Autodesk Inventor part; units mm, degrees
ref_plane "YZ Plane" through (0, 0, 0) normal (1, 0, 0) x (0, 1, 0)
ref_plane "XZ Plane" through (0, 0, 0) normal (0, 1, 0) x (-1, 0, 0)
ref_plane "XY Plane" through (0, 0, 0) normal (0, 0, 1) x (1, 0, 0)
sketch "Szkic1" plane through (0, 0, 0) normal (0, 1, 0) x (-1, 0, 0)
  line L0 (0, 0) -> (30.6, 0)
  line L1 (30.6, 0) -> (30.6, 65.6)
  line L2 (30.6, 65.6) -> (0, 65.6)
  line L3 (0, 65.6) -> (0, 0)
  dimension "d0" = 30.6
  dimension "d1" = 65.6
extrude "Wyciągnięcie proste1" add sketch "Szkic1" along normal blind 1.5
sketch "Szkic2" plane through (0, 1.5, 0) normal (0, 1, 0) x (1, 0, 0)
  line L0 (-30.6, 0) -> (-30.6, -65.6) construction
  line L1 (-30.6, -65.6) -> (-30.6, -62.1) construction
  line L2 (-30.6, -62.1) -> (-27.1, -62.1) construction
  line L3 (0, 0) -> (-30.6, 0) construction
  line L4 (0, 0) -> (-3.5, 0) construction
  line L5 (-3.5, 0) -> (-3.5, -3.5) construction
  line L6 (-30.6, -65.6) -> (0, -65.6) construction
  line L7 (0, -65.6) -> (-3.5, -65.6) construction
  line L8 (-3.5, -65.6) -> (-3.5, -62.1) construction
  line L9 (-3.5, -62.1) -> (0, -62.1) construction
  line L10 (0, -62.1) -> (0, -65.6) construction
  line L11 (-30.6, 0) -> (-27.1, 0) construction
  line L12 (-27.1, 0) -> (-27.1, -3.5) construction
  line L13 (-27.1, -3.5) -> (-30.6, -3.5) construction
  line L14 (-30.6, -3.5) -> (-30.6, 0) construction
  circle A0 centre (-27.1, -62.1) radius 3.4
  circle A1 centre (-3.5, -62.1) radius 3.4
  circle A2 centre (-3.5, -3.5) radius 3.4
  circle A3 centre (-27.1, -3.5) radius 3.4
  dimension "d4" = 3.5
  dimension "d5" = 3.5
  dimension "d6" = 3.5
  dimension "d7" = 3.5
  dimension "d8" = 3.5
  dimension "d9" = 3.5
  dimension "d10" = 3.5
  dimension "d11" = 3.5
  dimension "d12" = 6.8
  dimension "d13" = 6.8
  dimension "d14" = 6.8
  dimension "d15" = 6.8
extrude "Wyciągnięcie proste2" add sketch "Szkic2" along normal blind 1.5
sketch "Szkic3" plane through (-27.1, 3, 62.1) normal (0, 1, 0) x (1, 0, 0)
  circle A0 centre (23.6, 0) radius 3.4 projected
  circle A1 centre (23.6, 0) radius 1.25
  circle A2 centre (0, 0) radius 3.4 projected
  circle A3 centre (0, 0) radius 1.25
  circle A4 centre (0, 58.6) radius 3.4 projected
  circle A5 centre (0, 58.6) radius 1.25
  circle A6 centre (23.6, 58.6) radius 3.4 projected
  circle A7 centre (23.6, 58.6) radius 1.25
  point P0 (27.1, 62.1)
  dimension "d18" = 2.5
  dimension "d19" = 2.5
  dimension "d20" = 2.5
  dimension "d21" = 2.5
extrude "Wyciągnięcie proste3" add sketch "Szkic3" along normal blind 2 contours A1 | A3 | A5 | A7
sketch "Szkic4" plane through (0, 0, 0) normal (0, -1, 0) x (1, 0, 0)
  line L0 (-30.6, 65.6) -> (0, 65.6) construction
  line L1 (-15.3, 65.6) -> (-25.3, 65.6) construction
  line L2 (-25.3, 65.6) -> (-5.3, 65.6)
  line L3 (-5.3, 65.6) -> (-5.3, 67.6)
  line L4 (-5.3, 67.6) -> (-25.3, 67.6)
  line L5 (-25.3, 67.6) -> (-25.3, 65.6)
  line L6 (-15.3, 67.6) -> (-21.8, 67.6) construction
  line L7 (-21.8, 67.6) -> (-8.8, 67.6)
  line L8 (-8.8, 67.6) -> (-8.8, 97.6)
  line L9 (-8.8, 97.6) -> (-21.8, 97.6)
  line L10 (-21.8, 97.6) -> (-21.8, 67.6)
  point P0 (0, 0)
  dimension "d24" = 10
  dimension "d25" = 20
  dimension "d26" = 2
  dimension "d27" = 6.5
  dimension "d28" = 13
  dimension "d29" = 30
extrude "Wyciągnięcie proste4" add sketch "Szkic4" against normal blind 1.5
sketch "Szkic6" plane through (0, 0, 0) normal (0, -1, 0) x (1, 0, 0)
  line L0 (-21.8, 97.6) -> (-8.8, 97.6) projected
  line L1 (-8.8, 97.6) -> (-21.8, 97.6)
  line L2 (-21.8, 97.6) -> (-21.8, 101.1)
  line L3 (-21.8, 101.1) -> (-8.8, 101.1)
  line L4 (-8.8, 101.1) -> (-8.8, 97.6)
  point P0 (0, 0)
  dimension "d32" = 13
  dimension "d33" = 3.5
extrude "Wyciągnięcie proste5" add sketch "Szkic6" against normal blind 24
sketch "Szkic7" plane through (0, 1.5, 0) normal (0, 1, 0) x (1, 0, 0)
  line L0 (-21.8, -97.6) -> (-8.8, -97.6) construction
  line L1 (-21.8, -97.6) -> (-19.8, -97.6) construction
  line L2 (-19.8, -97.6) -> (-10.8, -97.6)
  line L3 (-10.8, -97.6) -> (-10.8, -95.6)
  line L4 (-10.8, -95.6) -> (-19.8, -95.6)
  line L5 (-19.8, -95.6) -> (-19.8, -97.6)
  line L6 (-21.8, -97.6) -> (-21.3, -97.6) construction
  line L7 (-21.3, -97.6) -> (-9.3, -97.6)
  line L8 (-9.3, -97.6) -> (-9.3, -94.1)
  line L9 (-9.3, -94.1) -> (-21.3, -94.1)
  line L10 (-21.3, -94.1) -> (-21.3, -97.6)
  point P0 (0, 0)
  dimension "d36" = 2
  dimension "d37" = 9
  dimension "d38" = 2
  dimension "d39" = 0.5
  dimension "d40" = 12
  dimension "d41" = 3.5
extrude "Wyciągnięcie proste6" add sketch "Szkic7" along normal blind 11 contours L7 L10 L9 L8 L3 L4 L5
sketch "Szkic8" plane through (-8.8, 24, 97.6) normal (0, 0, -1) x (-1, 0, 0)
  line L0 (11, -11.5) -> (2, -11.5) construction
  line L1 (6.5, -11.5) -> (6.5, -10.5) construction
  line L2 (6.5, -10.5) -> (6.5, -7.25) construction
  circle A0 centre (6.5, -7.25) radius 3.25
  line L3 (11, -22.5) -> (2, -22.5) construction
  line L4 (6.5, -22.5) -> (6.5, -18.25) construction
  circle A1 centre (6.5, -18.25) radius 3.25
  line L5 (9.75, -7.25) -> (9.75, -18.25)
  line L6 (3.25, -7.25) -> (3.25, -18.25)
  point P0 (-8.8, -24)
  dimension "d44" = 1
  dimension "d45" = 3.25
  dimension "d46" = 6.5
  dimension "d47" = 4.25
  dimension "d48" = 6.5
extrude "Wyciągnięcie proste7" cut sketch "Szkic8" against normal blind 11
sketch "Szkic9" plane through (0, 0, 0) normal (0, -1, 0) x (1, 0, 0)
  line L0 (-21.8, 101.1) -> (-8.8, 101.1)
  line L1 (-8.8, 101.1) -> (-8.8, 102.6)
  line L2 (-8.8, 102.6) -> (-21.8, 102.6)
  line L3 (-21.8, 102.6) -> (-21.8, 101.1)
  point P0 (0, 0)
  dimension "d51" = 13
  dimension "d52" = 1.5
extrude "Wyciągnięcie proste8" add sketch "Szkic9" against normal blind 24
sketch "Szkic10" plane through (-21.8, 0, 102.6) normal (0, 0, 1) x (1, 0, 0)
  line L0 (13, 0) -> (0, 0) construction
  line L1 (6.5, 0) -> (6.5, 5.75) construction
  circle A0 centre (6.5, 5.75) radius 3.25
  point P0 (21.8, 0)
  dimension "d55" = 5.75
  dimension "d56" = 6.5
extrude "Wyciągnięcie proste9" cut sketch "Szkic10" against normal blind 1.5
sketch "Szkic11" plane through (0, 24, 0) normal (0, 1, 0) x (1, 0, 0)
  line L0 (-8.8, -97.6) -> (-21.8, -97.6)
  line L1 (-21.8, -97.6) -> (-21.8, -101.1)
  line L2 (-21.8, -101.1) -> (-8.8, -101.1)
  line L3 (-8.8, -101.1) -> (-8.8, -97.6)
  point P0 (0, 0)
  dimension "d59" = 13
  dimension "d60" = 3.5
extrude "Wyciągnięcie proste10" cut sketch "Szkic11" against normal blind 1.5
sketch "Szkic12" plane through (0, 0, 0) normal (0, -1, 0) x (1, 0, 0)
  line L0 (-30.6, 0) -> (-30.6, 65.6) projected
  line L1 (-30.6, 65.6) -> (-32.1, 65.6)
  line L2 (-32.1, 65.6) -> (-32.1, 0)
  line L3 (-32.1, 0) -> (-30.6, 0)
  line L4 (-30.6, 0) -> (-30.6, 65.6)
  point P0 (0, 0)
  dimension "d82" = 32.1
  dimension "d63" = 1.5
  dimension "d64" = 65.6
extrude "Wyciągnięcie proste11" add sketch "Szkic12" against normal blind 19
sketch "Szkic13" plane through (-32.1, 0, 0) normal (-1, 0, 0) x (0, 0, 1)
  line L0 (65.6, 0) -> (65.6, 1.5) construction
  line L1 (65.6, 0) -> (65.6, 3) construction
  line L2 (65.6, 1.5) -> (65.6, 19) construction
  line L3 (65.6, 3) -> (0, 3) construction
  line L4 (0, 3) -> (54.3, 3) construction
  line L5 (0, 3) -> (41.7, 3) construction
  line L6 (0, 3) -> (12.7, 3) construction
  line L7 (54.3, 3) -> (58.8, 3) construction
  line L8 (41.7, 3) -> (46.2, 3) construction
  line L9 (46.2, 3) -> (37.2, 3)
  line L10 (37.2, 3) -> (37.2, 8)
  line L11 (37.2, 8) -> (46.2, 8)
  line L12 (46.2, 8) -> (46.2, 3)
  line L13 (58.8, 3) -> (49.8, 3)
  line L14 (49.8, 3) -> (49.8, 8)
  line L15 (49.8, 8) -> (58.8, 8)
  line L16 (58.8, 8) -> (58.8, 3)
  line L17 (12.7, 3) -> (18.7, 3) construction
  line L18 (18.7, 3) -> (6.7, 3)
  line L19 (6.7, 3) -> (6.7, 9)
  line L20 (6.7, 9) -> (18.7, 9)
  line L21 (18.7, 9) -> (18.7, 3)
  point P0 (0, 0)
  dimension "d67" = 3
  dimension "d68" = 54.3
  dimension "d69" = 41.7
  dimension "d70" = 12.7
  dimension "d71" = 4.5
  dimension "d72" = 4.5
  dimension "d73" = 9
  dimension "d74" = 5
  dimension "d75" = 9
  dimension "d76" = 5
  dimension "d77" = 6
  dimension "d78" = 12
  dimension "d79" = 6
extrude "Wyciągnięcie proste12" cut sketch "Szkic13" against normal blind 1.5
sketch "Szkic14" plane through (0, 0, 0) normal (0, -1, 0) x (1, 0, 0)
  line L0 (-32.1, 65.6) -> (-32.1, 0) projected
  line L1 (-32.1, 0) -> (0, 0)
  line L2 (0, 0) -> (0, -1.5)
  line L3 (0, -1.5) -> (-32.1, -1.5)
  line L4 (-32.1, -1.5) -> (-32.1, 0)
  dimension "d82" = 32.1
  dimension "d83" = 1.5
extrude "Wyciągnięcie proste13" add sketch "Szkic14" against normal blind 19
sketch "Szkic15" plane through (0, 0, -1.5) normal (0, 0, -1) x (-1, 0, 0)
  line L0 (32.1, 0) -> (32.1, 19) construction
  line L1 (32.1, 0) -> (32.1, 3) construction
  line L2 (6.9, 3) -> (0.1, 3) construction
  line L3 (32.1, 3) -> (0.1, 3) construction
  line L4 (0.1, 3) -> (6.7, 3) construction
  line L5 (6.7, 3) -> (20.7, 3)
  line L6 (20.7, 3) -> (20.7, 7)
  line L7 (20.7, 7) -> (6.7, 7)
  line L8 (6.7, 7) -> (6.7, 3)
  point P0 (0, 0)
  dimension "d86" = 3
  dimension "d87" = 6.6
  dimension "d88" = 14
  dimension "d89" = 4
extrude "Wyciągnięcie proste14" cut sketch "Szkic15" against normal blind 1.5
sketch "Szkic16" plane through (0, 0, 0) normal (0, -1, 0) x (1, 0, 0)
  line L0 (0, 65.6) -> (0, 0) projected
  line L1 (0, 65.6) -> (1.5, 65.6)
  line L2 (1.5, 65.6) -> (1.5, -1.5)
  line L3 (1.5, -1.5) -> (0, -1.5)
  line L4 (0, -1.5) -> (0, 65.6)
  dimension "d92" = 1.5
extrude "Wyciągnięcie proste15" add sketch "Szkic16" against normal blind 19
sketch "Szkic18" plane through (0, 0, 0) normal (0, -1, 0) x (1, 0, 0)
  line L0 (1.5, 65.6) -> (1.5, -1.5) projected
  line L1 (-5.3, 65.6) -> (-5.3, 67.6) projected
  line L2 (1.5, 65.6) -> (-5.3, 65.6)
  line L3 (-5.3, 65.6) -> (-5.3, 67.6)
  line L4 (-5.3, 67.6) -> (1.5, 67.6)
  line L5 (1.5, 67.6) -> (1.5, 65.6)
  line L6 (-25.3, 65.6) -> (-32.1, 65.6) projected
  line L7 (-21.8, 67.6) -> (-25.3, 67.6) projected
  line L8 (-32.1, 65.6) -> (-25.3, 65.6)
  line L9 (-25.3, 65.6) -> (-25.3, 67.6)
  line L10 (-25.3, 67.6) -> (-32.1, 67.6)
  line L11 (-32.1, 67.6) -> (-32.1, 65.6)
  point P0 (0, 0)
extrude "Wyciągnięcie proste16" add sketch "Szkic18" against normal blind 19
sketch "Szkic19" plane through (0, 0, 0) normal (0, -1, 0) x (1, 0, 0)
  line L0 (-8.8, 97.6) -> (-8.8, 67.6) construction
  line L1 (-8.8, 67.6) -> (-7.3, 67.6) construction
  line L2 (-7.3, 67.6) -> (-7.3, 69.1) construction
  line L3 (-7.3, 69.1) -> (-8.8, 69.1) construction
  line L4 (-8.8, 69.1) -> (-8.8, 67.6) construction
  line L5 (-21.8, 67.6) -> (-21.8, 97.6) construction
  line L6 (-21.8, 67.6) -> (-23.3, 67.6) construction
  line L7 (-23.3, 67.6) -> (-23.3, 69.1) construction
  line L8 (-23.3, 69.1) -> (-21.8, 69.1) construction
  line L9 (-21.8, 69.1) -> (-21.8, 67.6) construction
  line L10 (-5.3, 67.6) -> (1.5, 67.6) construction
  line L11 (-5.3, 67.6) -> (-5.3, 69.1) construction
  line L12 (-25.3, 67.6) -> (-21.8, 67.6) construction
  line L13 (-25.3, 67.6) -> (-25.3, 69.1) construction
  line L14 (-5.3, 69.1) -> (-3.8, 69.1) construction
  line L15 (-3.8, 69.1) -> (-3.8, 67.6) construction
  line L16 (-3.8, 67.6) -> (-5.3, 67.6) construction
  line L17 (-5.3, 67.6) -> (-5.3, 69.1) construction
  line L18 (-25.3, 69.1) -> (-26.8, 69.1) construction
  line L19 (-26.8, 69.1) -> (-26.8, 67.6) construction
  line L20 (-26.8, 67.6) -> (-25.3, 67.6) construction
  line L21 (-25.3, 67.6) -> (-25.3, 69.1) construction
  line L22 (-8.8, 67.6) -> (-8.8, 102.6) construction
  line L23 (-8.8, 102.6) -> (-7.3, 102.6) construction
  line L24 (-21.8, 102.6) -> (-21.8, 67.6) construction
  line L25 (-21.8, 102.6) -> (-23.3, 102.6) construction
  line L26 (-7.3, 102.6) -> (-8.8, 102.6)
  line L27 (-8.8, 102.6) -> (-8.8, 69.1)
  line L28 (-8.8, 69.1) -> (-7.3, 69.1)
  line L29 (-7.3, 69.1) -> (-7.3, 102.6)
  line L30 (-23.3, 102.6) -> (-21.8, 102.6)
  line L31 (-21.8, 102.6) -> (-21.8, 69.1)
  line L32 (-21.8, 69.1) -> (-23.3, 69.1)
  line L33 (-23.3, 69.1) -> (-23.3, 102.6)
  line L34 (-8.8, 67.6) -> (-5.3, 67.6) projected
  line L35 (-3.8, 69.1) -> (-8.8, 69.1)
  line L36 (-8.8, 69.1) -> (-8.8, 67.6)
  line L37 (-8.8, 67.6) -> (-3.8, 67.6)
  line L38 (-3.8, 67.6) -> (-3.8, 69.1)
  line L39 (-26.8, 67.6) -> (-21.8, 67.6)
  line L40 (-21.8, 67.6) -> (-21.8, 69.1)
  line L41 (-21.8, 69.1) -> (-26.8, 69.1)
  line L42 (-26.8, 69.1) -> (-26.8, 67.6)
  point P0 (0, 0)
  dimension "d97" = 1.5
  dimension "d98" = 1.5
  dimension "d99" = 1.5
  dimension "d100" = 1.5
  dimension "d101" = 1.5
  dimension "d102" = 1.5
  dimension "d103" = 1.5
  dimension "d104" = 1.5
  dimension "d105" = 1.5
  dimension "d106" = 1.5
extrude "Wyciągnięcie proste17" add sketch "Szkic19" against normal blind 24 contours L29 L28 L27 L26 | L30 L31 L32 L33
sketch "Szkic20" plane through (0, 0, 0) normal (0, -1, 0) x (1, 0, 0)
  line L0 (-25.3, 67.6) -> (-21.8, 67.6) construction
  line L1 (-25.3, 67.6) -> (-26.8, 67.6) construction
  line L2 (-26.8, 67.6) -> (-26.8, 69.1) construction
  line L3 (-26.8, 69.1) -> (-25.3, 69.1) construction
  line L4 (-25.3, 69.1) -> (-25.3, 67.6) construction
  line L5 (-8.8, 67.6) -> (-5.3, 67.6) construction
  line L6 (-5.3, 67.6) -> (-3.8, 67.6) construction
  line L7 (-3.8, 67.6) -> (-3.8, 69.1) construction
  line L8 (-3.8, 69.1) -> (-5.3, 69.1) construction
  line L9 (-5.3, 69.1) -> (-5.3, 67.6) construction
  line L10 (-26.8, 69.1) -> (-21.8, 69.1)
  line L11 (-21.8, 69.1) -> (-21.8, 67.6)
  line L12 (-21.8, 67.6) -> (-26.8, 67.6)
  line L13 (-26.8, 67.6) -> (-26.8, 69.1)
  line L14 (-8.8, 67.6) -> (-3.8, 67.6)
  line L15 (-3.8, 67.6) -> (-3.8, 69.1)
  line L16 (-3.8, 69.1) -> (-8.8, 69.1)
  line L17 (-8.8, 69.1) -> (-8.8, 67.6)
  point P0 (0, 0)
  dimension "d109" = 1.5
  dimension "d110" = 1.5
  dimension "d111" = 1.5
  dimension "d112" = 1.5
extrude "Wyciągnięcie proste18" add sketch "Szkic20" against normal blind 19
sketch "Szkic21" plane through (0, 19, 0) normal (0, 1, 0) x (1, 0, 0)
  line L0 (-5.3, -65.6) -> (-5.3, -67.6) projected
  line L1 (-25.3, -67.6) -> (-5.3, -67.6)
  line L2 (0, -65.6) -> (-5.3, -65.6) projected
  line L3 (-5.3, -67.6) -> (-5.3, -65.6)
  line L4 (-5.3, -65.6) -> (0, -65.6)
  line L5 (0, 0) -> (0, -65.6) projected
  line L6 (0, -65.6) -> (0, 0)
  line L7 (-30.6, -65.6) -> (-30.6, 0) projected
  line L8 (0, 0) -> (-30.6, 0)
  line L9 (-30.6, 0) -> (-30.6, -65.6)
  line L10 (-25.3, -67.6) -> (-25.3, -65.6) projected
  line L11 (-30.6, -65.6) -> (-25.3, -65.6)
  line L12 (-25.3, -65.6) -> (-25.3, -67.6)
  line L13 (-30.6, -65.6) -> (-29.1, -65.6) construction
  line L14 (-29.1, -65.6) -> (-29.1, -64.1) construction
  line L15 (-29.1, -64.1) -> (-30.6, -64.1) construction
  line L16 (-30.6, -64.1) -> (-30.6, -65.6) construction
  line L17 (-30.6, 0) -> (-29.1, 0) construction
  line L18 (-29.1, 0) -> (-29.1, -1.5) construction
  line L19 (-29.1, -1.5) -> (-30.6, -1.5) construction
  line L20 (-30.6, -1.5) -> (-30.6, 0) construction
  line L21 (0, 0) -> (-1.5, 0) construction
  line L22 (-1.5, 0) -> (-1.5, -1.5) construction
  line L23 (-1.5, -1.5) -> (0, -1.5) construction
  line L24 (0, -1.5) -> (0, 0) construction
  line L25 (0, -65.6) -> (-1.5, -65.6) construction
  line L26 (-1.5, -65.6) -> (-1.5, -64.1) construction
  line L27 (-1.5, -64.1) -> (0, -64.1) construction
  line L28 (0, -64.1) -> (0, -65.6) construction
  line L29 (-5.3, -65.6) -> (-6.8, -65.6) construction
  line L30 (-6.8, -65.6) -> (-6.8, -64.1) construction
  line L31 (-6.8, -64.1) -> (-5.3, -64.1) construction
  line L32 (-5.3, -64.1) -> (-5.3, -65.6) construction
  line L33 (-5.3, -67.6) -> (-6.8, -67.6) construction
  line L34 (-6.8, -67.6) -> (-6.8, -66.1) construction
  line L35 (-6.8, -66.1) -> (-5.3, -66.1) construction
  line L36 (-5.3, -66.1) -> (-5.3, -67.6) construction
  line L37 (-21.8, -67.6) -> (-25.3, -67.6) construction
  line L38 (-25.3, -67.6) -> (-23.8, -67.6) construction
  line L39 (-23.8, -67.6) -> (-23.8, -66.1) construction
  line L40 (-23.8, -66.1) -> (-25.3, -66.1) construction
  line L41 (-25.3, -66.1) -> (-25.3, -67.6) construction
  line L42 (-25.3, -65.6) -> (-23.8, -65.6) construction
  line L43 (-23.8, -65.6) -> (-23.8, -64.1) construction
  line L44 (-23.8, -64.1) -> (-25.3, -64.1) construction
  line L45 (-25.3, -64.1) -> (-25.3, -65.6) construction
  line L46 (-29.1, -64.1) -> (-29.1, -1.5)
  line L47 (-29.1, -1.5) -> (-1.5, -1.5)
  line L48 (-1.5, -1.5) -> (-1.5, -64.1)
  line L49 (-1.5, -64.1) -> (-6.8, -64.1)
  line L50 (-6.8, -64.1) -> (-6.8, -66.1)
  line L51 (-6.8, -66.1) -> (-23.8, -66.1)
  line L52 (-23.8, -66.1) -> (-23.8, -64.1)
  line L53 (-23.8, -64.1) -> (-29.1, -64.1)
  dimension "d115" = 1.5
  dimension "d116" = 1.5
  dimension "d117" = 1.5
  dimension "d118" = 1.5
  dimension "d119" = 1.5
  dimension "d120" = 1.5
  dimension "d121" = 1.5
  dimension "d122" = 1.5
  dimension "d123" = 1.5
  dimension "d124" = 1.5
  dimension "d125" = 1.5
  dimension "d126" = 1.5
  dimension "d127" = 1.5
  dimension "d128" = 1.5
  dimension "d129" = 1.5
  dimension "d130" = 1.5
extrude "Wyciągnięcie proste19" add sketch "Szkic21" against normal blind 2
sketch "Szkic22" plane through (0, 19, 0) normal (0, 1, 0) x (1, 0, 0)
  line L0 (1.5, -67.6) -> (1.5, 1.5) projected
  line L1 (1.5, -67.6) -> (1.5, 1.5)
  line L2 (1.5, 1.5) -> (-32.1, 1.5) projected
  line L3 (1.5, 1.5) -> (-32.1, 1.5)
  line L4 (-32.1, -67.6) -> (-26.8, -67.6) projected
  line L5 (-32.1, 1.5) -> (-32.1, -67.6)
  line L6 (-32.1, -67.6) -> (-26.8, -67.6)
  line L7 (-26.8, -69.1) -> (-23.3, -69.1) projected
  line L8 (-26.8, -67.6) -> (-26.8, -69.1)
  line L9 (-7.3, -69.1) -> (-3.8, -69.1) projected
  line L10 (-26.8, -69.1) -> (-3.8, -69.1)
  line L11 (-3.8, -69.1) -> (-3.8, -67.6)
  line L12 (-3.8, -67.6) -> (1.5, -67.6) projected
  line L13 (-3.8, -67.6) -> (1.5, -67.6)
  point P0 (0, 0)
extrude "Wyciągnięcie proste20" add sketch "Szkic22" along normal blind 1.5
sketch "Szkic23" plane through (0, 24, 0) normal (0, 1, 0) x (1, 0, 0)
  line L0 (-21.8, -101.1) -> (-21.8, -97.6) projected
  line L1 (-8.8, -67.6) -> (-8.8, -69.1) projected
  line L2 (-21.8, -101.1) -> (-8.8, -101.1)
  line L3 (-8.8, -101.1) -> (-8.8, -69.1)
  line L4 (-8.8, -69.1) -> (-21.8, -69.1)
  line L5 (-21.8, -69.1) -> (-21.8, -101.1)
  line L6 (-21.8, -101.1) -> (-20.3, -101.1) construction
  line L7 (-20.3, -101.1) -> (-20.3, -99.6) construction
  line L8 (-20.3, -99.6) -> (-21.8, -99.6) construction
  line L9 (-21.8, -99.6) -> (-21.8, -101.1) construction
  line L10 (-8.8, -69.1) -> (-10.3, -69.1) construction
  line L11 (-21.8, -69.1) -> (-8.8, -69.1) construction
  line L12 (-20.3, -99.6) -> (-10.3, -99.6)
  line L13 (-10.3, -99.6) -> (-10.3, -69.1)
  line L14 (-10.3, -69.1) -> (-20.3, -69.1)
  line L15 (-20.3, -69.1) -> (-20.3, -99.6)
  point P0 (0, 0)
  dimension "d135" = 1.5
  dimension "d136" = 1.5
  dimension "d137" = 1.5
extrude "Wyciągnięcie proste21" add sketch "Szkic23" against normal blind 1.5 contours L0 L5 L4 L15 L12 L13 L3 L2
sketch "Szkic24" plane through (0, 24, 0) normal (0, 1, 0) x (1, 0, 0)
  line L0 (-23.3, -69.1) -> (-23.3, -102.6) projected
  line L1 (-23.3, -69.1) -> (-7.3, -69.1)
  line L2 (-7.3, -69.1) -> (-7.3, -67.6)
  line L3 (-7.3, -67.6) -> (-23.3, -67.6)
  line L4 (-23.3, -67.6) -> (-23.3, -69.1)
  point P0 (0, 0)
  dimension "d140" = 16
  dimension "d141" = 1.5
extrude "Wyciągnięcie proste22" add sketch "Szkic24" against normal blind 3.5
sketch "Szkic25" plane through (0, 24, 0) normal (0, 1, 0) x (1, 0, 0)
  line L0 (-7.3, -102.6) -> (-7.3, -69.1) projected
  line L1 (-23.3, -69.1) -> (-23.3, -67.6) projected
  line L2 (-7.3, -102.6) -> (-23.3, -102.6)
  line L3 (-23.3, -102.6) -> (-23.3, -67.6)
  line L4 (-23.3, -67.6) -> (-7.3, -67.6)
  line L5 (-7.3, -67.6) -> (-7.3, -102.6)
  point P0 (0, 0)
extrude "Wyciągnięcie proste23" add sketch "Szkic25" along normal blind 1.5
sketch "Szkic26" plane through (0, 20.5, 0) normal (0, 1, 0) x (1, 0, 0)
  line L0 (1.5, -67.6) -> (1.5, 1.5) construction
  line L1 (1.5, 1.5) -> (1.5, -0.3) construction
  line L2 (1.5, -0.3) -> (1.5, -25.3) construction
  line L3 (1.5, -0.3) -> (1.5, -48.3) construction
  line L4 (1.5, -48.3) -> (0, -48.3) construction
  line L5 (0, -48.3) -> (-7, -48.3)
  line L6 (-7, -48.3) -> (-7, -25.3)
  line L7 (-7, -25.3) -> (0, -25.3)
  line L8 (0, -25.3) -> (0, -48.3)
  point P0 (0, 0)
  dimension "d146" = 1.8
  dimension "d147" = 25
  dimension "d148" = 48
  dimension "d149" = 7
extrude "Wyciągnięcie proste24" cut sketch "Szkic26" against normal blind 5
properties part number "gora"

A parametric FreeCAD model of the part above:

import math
import FreeCAD as App
import Part
import Sketcher
from FreeCAD import Vector
Q = App.Units.Quantity


def add_polygon(sketch, points):
    """Adds a closed chain of lines whose ends are joined by coincident constraints."""
    first, n = sketch.GeometryCount, len(points)
    for a, b in zip(points, points[1:] + points[:1]):
        sketch.addGeometry(Part.LineSegment(App.Vector(*a, 0), App.Vector(*b, 0)), False)
    for i in range(n):
        sketch.addConstraint(Sketcher.Constraint("Coincident", first + i, 2, first + (i + 1) % n, 1))

doc = App.newDocument("Part")
body = doc.addObject("PartDesign::Body", "Body")

sketch1 = body.newObject("Sketcher::SketchObject", "Sketch")
sketch1.AttachmentSupport = (doc.getObject("XZ_Plane"), [""])
sketch1.MapMode = "FlatFace"
add_polygon(sketch1, [(0, 66), (0, 0), (-31, 0), (-31, 66)])
sketch1.addConstraint(Sketcher.Constraint("Vertical", 0))
sketch1.addConstraint(Sketcher.Constraint("Horizontal", 1))
sketch1.addConstraint(Sketcher.Constraint("Vertical", 2))
sketch1.addConstraint(Sketcher.Constraint("Horizontal", 3))
sketch1.addConstraint(Sketcher.Constraint("Coincident", 0, 2, -1, 1))
sketch1.addConstraint(Sketcher.Constraint("DistanceX", 1, 2, 1, 1, Q("30.6 mm")))
sketch1.addConstraint(Sketcher.Constraint("DistanceY", 0, 2, 0, 1, Q("65.6 mm")))
pad1 = body.newObject("PartDesign::Pad", "Pad")
pad1.Profile = sketch1
pad1.Length = 1.5
pad1.Reversed = True

sketch2 = body.newObject("Sketcher::SketchObject", "Sketch001")
sketch2.AttachmentSupport = (doc.getObject("XZ_Plane"), [""])
sketch2.MapMode = "FlatFace"
sketch2.AttachmentOffset = App.Placement(Vector(0, 0, -1.5), App.Rotation())
sketch2.addGeometry(Part.Circle(Vector(-27.1, 62.1, 0), Vector(0, 0, 1), 3.4), False)
sketch2.addGeometry(Part.Circle(Vector(-3.5, 62.1, 0), Vector(0, 0, 1), 3.4), False)
sketch2.addGeometry(Part.Circle(Vector(-3.5, 3.5, 0), Vector(0, 0, 1), 3.4), False)
sketch2.addGeometry(Part.Circle(Vector(-27.1, 3.5, 0), Vector(0, 0, 1), 3.4), False)
sketch2.addConstraint(Sketcher.Constraint("Equal", 0, 1))
sketch2.addConstraint(Sketcher.Constraint("Equal", 1, 2))
sketch2.addConstraint(Sketcher.Constraint("Equal", 2, 3))
sketch2.addConstraint(Sketcher.Constraint("Horizontal", 0, 3, 1, 3))
sketch2.addConstraint(Sketcher.Constraint("Horizontal", 2, 3, 3, 3))
sketch2.addConstraint(Sketcher.Constraint("Vertical", 1, 3, 2, 3))
sketch2.addConstraint(Sketcher.Constraint("Vertical", 0, 3, 3, 3))
sketch2.addConstraint(Sketcher.Constraint("Diameter", 0, Q("6.8 mm")))
sketch2.addConstraint(Sketcher.Constraint("DistanceX", 1, 3, -1, 1, Q("3.5 mm")))
sketch2.addConstraint(Sketcher.Constraint("DistanceY", -1, 1, 2, 3, Q("3.5 mm")))
sketch2.addConstraint(Sketcher.Constraint("DistanceX", 0, 3, -1, 1, Q("27.1 mm")))
sketch2.addConstraint(Sketcher.Constraint("DistanceY", -1, 1, 0, 3, Q("62.1 mm")))
pad2 = body.newObject("PartDesign::Pad", "Pad001")
pad2.Profile = sketch2
pad2.Length = 1.5
pad2.Reversed = True

sketch3 = body.newObject("Sketcher::SketchObject", "Sketch002")
sketch3.AttachmentSupport = (doc.getObject("XZ_Plane"), [""])
sketch3.MapMode = "FlatFace"
sketch3.AttachmentOffset = App.Placement(Vector(0, 0, -3), App.Rotation())
sketch3.addGeometry(Part.Circle(Vector(-3.5, 62.1, 0), Vector(0, 0, 1), 1.2), False)
sketch3.addGeometry(Part.Circle(Vector(-27.1, 62.1, 0), Vector(0, 0, 1), 1.2), False)
sketch3.addGeometry(Part.Circle(Vector(-27.1, 3.5, 0), Vector(0, 0, 1), 1.2), False)
sketch3.addGeometry(Part.Circle(Vector(-3.5, 3.5, 0), Vector(0, 0, 1), 1.2), False)
sketch3.addConstraint(Sketcher.Constraint("Equal", 0, 1))
sketch3.addConstraint(Sketcher.Constraint("Equal", 1, 2))
sketch3.addConstraint(Sketcher.Constraint("Equal", 2, 3))
sketch3.addConstraint(Sketcher.Constraint("Horizontal", 0, 3, 1, 3))
sketch3.addConstraint(Sketcher.Constraint("Horizontal", 2, 3, 3, 3))
sketch3.addConstraint(Sketcher.Constraint("Vertical", 1, 3, 2, 3))
sketch3.addConstraint(Sketcher.Constraint("Vertical", 0, 3, 3, 3))
sketch3.addConstraint(Sketcher.Constraint("Diameter", 0, Q("2.5 mm")))
sketch3.addConstraint(Sketcher.Constraint("DistanceX", 0, 3, -1, 1, Q("3.5 mm")))
sketch3.addConstraint(Sketcher.Constraint("DistanceY", -1, 1, 0, 3, Q("62.1 mm")))
sketch3.addConstraint(Sketcher.Constraint("DistanceX", 1, 3, -1, 1, Q("27.1 mm")))
sketch3.addConstraint(Sketcher.Constraint("DistanceY", -1, 1, 2, 3, Q("3.5 mm")))
pad3 = body.newObject("PartDesign::Pad", "Pad002")
pad3.Profile = sketch3
pad3.Length = 2
pad3.Reversed = True

sketch4 = body.newObject("Sketcher::SketchObject", "Sketch003")
sketch4.AttachmentSupport = (doc.getObject("XZ_Plane"), [""])
sketch4.MapMode = "FlatFace"
add_polygon(sketch4, [(-25.3, 67.6), (-25.3, 65.6), (-5.3, 65.6), (-5.3, 67.6), (-8.8, 67.6), (-8.8, 97.6), (-21.8, 97.6), (-21.8, 67.6)])
sketch4.addConstraint(Sketcher.Constraint("Vertical", 0))
sketch4.addConstraint(Sketcher.Constraint("Horizontal", 1))
sketch4.addConstraint(Sketcher.Constraint("Vertical", 2))
sketch4.addConstraint(Sketcher.Constraint("Horizontal", 3))
sketch4.addConstraint(Sketcher.Constraint("Vertical", 4))
sketch4.addConstraint(Sketcher.Constraint("Horizontal", 5))
sketch4.addConstraint(Sketcher.Constraint("Vertical", 6))
sketch4.addConstraint(Sketcher.Constraint("Horizontal", 7))
sketch4.addConstraint(Sketcher.Constraint("Horizontal", 3, 2, 6, 2))
sketch4.addConstraint(Sketcher.Constraint("Equal", 3, 7))
sketch4.addConstraint(Sketcher.Constraint("DistanceX", 1, 1, 1, 2, Q("20 mm")))
sketch4.addConstraint(Sketcher.Constraint("DistanceX", 5, 2, 5, 1, Q("13 mm")))
sketch4.addConstraint(Sketcher.Constraint("DistanceY", 0, 2, 0, 1, Q("2 mm")))
sketch4.addConstraint(Sketcher.Constraint("DistanceY", 4, 1, 4, 2, Q("30 mm")))
sketch4.addConstraint(Sketcher.Constraint("DistanceX", 0, 2, -1, 1, Q("25.3 mm")))
sketch4.addConstraint(Sketcher.Constraint("DistanceY", -1, 1, 0, 2, Q("65.6 mm")))
pad4 = body.newObject("PartDesign::Pad", "Pad003")
pad4.Profile = sketch4
pad4.Length = 1.5
pad4.Reversed = True

sketch5 = body.newObject("Sketcher::SketchObject", "Sketch004")
sketch5.AttachmentSupport = (doc.getObject("XZ_Plane"), [""])
sketch5.MapMode = "FlatFace"
add_polygon(sketch5, [(-21.8, 101.1), (-21.8, 97.6), (-8.8, 97.6), (-8.8, 101.1)])
sketch5.addConstraint(Sketcher.Constraint("Vertical", 0))
sketch5.addConstraint(Sketcher.Constraint("Horizontal", 1))
sketch5.addConstraint(Sketcher.Constraint("Vertical", 2))
sketch5.addConstraint(Sketcher.Constraint("Horizontal", 3))
sketch5.addConstraint(Sketcher.Constraint("DistanceX", 1, 1, 1, 2, Q("13 mm")))
sketch5.addConstraint(Sketcher.Constraint("DistanceY", 0, 2, 0, 1, Q("3.5 mm")))
sketch5.addConstraint(Sketcher.Constraint("DistanceX", 0, 2, -1, 1, Q("21.8 mm")))
sketch5.addConstraint(Sketcher.Constraint("DistanceY", -1, 1, 0, 2, Q("97.6 mm")))
pad5 = body.newObject("PartDesign::Pad", "Pad004")
pad5.Profile = sketch5
pad5.Length = 24
pad5.Reversed = True

sketch6 = body.newObject("Sketcher::SketchObject", "Sketch005")
sketch6.AttachmentSupport = (doc.getObject("XZ_Plane"), [""])
sketch6.MapMode = "FlatFace"
sketch6.AttachmentOffset = App.Placement(Vector(0, 0, -1.5), App.Rotation())
add_polygon(sketch6, [(-21.3, 97.6), (-19.8, 97.6), (-19.8, 95.6), (-10.8, 95.6), (-10.8, 97.6), (-9.3, 97.6), (-9.3, 94.1), (-21.3, 94.1)])
sketch6.addConstraint(Sketcher.Constraint("Horizontal", 0))
sketch6.addConstraint(Sketcher.Constraint("Vertical", 1))
sketch6.addConstraint(Sketcher.Constraint("Horizontal", 2))
sketch6.addConstraint(Sketcher.Constraint("Vertical", 3))
sketch6.addConstraint(Sketcher.Constraint("Horizontal", 4))
sketch6.addConstraint(Sketcher.Constraint("Vertical", 5))
sketch6.addConstraint(Sketcher.Constraint("Horizontal", 6))
sketch6.addConstraint(Sketcher.Constraint("Vertical", 7))
sketch6.addConstraint(Sketcher.Constraint("Horizontal", 0, 2, 3, 2))
sketch6.addConstraint(Sketcher.Constraint("Equal", 0, 4))
sketch6.addConstraint(Sketcher.Constraint("DistanceX", 2, 1, 2, 2, Q("9 mm")))
sketch6.addConstraint(Sketcher.Constraint("DistanceX", 6, 2, 6, 1, Q("12 mm")))
sketch6.addConstraint(Sketcher.Constraint("DistanceY", 1, 2, 1, 1, Q("2 mm")))
sketch6.addConstraint(Sketcher.Constraint("DistanceY", 5, 2, 5, 1, Q("3.5 mm")))
sketch6.addConstraint(Sketcher.Constraint("DistanceX", 0, 2, -1, 1, Q("19.8 mm")))
sketch6.addConstraint(Sketcher.Constraint("DistanceY", -1, 1, 0, 2, Q("97.6 mm")))
pad6 = body.newObject("PartDesign::Pad", "Pad005")
pad6.Profile = sketch6
pad6.Length = 11
pad6.Reversed = True

sketch7 = body.newObject("Sketcher::SketchObject", "Sketch006")
sketch7.AttachmentSupport = (doc.getObject("XY_Plane"), [""])
sketch7.MapMode = "FlatFace"
sketch7.AttachmentOffset = App.Placement(Vector(0, 0, 97.6), App.Rotation())
sketch7.addGeometry(Part.ArcOfCircle(Part.Circle(Vector(-15.3, 16.8, 0), Vector(0, 0, 1), 3.2), math.radians(0), math.radians(180)), False)
sketch7.addGeometry(Part.LineSegment(Vector(-12.1, 16.8, 0), Vector(-12.1, 5.8, 0)), False)
sketch7.addGeometry(Part.ArcOfCircle(Part.Circle(Vector(-15.3, 5.8, 0), Vector(0, 0, 1), 3.2), math.radians(180), math.radians(360)), False)
sketch7.addGeometry(Part.LineSegment(Vector(-18.6, 5.8, 0), Vector(-18.6, 16.8, 0)), False)
sketch7.addConstraint(Sketcher.Constraint("Tangent", 0, 1, 1, 1))
sketch7.addConstraint(Sketcher.Constraint("Tangent", 1, 2, 2, 2))
sketch7.addConstraint(Sketcher.Constraint("Tangent", 2, 1, 3, 1))
sketch7.addConstraint(Sketcher.Constraint("Tangent", 3, 2, 0, 2))
sketch7.addConstraint(Sketcher.Constraint("Vertical", 1))
sketch7.addConstraint(Sketcher.Constraint("Vertical", 3))
sketch7.addConstraint(Sketcher.Constraint("Radius", 0, Q("3.25 mm")))
sketch7.addConstraint(Sketcher.Constraint("DistanceY", 1, 2, 1, 1, Q("11 mm")))
sketch7.addConstraint(Sketcher.Constraint("DistanceX", 0, 3, -1, 1, Q("15.3 mm")))
sketch7.addConstraint(Sketcher.Constraint("DistanceY", -1, 1, 0, 3, Q("16.75 mm")))
pocket1 = body.newObject("PartDesign::Pocket", "Pocket")
pocket1.Profile = sketch7
pocket1.Length = 11
pocket1.Reversed = True

sketch8 = body.newObject("Sketcher::SketchObject", "Sketch007")
sketch8.AttachmentSupport = (doc.getObject("XZ_Plane"), [""])
sketch8.MapMode = "FlatFace"
add_polygon(sketch8, [(-21.8, 102.6), (-21.8, 101.1), (-8.8, 101.1), (-8.8, 102.6)])
sketch8.addConstraint(Sketcher.Constraint("Vertical", 0))
sketch8.addConstraint(Sketcher.Constraint("Horizontal", 1))
sketch8.addConstraint(Sketcher.Constraint("Vertical", 2))
sketch8.addConstraint(Sketcher.Constraint("Horizontal", 3))
sketch8.addConstraint(Sketcher.Constraint("DistanceX", 1, 1, 1, 2, Q("13 mm")))
sketch8.addConstraint(Sketcher.Constraint("DistanceY", 0, 2, 0, 1, Q("1.5 mm")))
sketch8.addConstraint(Sketcher.Constraint("DistanceX", 0, 2, -1, 1, Q("21.8 mm")))
sketch8.addConstraint(Sketcher.Constraint("DistanceY", -1, 1, 0, 2, Q("101.1 mm")))
pad7 = body.newObject("PartDesign::Pad", "Pad006")
pad7.Profile = sketch8
pad7.Length = 24
pad7.Reversed = True

sketch9 = body.newObject("Sketcher::SketchObject", "Sketch008")
sketch9.AttachmentSupport = (doc.getObject("XY_Plane"), [""])
sketch9.MapMode = "FlatFace"
sketch9.AttachmentOffset = App.Placement(Vector(0, 0, 102.6), App.Rotation())
sketch9.addGeometry(Part.Circle(Vector(-15.3, 5.8, 0), Vector(0, 0, 1), 3.2), False)
sketch9.addConstraint(Sketcher.Constraint("Diameter", 0, Q("6.5 mm")))
sketch9.addConstraint(Sketcher.Constraint("DistanceY", -1, 1, 0, 3, Q("5.75 mm")))
sketch9.addConstraint(Sketcher.Constraint("DistanceX", 0, 3, -1, 1, Q("15.3 mm")))
pocket2 = body.newObject("PartDesign::Pocket", "Pocket001")
pocket2.Profile = sketch9
pocket2.Length = 1.5

sketch10 = body.newObject("Sketcher::SketchObject", "Sketch009")
sketch10.AttachmentSupport = (doc.getObject("XZ_Plane"), [""])
sketch10.MapMode = "FlatFace"
sketch10.AttachmentOffset = App.Placement(Vector(0, 0, -24), App.Rotation())
add_polygon(sketch10, [(-8.8, 101.1), (-8.8, 97.6), (-21.8, 97.6), (-21.8, 101.1)])
sketch10.addConstraint(Sketcher.Constraint("Vertical", 0))
sketch10.addConstraint(Sketcher.Constraint("Horizontal", 1))
sketch10.addConstraint(Sketcher.Constraint("Vertical", 2))
sketch10.addConstraint(Sketcher.Constraint("Horizontal", 3))
sketch10.addConstraint(Sketcher.Constraint("DistanceX", 1, 2, 1, 1, Q("13 mm")))
sketch10.addConstraint(Sketcher.Constraint("DistanceY", 0, 2, 0, 1, Q("3.5 mm")))
sketch10.addConstraint(Sketcher.Constraint("DistanceX", 0, 2, -1, 1, Q("8.8 mm")))
sketch10.addConstraint(Sketcher.Constraint("DistanceY", -1, 1, 0, 2, Q("97.6 mm")))
pocket3 = body.newObject("PartDesign::Pocket", "Pocket002")
pocket3.Profile = sketch10
pocket3.Length = 1.5
pocket3.Reversed = True

sketch11 = body.newObject("Sketcher::SketchObject", "Sketch010")
sketch11.AttachmentSupport = (doc.getObject("XZ_Plane"), [""])
sketch11.MapMode = "FlatFace"
add_polygon(sketch11, [(-32.1, 0), (-30.6, 0), (-30.6, 65.6), (-32.1, 65.6)])
sketch11.addConstraint(Sketcher.Constraint("Horizontal", 0))
sketch11.addConstraint(Sketcher.Constraint("Vertical", 1))
sketch11.addConstraint(Sketcher.Constraint("Horizontal", 2))
sketch11.addConstraint(Sketcher.Constraint("Vertical", 3))
sketch11.addConstraint(Sketcher.Constraint("PointOnObject", 0, 2, -1))
sketch11.addConstraint(Sketcher.Constraint("DistanceX", 0, 1, 0, 2, Q("1.5 mm")))
sketch11.addConstraint(Sketcher.Constraint("DistanceY", 1, 1, 1, 2, Q("65.6 mm")))
sketch11.addConstraint(Sketcher.Constraint("DistanceX", 2, 2, -1, 1, Q("32.1 mm")))
pad8 = body.newObject("PartDesign::Pad", "Pad007")
pad8.Profile = sketch11
pad8.Length = 19
pad8.Reversed = True

sketch12 = body.newObject("Sketcher::SketchObject", "Sketch011")
sketch12.AttachmentSupport = (doc.getObject("YZ_Plane"), [""])
sketch12.MapMode = "FlatFace"
sketch12.AttachmentOffset = App.Placement(Vector(0, 0, -32.1), App.Rotation())
add_polygon(sketch12, [(3, 37), (3, 46), (8, 46), (8, 37)])
add_polygon(sketch12, [(3, 50), (3, 59), (8, 59), (8, 50)])
add_polygon(sketch12, [(3, 7), (3, 19), (9, 19), (9, 7)])
sketch12.addConstraint(Sketcher.Constraint("Vertical", 0))
sketch12.addConstraint(Sketcher.Constraint("Horizontal", 1))
sketch12.addConstraint(Sketcher.Constraint("Vertical", 2))
sketch12.addConstraint(Sketcher.Constraint("Horizontal", 3))
sketch12.addConstraint(Sketcher.Constraint("Vertical", 4))
sketch12.addConstraint(Sketcher.Constraint("Horizontal", 5))
sketch12.addConstraint(Sketcher.Constraint("Vertical", 6))
sketch12.addConstraint(Sketcher.Constraint("Horizontal", 7))
sketch12.addConstraint(Sketcher.Constraint("Vertical", 8))
sketch12.addConstraint(Sketcher.Constraint("Horizontal", 9))
sketch12.addConstraint(Sketcher.Constraint("Vertical", 10))
sketch12.addConstraint(Sketcher.Constraint("Horizontal", 11))
sketch12.addConstraint(Sketcher.Constraint("Vertical", 3, 2, 4, 2))
sketch12.addConstraint(Sketcher.Constraint("Vertical", 2, 2, 5, 2))
sketch12.addConstraint(Sketcher.Constraint("Vertical", 7, 2, 8, 2))
sketch12.addConstraint(Sketcher.Constraint("Equal", 2, 4))
sketch12.addConstraint(Sketcher.Constraint("DistanceX", 1, 1, 1, 2, Q("5 mm")))
sketch12.addConstraint(Sketcher.Constraint("DistanceX", 9, 1, 9, 2, Q("6 mm")))
sketch12.addConstraint(Sketcher.Constraint("DistanceY", 0, 1, 0, 2, Q("9 mm")))
sketch12.addConstraint(Sketcher.Constraint("DistanceY", 8, 1, 8, 2, Q("12 mm")))
sketch12.addConstraint(Sketcher.Constraint("DistanceX", -1, 1, 0, 2, Q("3 mm")))
sketch12.addConstraint(Sketcher.Constraint("DistanceY", -1, 1, 0, 2, Q("46.2 mm")))
sketch12.addConstraint(Sketcher.Constraint("DistanceY", -1, 1, 4, 2, Q("58.8 mm")))
sketch12.addConstraint(Sketcher.Constraint("DistanceY", -1, 1, 8, 2, Q("18.7 mm")))
pocket4 = body.newObject("PartDesign::Pocket", "Pocket003")
pocket4.Profile = sketch12
pocket4.Length = 1.5
pocket4.Reversed = True

sketch13 = body.newObject("Sketcher::SketchObject", "Sketch012")
sketch13.AttachmentSupport = (doc.getObject("XZ_Plane"), [""])
sketch13.MapMode = "FlatFace"
add_polygon(sketch13, [(0, 0), (-32.1, 0), (-32.1, -1.5), (0, -1.5)])
sketch13.addConstraint(Sketcher.Constraint("Horizontal", 0))
sketch13.addConstraint(Sketcher.Constraint("Vertical", 1))
sketch13.addConstraint(Sketcher.Constraint("Horizontal", 2))
sketch13.addConstraint(Sketcher.Constraint("Vertical", 3))
sketch13.addConstraint(Sketcher.Constraint("Coincident", 3, 2, -1, 1))
sketch13.addConstraint(Sketcher.Constraint("DistanceX", 0, 2, 0, 1, Q("32.1 mm")))
sketch13.addConstraint(Sketcher.Constraint("DistanceY", 1, 2, 1, 1, Q("1.5 mm")))
pad9 = body.newObject("PartDesign::Pad", "Pad008")
pad9.Profile = sketch13
pad9.Length = 19
pad9.Reversed = True

sketch14 = body.newObject("Sketcher::SketchObject", "Sketch013")
sketch14.AttachmentSupport = (doc.getObject("XY_Plane"), [""])
sketch14.MapMode = "FlatFace"
sketch14.AttachmentOffset = App.Placement(Vector(0, 0, -1.5), App.Rotation())
add_polygon(sketch14, [(-6.7, 7), (-6.7, 3), (-20.7, 3), (-20.7, 7)])
sketch14.addConstraint(Sketcher.Constraint("Vertical", 0))
sketch14.addConstraint(Sketcher.Constraint("Horizontal", 1))
sketch14.addConstraint(Sketcher.Constraint("Vertical", 2))
sketch14.addConstraint(Sketcher.Constraint("Horizontal", 3))
sketch14.addConstraint(Sketcher.Constraint("DistanceX", 1, 2, 1, 1, Q("14 mm")))
sketch14.addConstraint(Sketcher.Constraint("DistanceY", 0, 2, 0, 1, Q("4 mm")))
sketch14.addConstraint(Sketcher.Constraint("DistanceY", -1, 1, 0, 2, Q("3 mm")))
sketch14.addConstraint(Sketcher.Constraint("DistanceX", 0, 2, -1, 1, Q("6.7 mm")))
pocket5 = body.newObject("PartDesign::Pocket", "Pocket004")
pocket5.Profile = sketch14
pocket5.Length = 1.5
pocket5.Reversed = True

sketch15 = body.newObject("Sketcher::SketchObject", "Sketch014")
sketch15.AttachmentSupport = (doc.getObject("XZ_Plane"), [""])
sketch15.MapMode = "FlatFace"
add_polygon(sketch15, [(1.5, 65.6), (0, 65.6), (0, -1.5), (1.5, -1.5)])
sketch15.addConstraint(Sketcher.Constraint("Horizontal", 0))
sketch15.addConstraint(Sketcher.Constraint("Vertical", 1))
sketch15.addConstraint(Sketcher.Constraint("Horizontal", 2))
sketch15.addConstraint(Sketcher.Constraint("Vertical", 3))
sketch15.addConstraint(Sketcher.Constraint("PointOnObject", 0, 2, -2))
sketch15.addConstraint(Sketcher.Constraint("DistanceX", 0, 2, 0, 1, Q("1.5 mm")))
sketch15.addConstraint(Sketcher.Constraint("DistanceY", 1, 2, -1, 1, Q("1.5 mm")))
sketch15.addConstraint(Sketcher.Constraint("DistanceY", 1, 2, 1, 1, Q("67.1 mm")))
pad10 = body.newObject("PartDesign::Pad", "Pad009")
pad10.Profile = sketch15
pad10.Length = 19
pad10.Reversed = True

sketch16 = body.newObject("Sketcher::SketchObject", "Sketch015")
sketch16.AttachmentSupport = (doc.getObject("XZ_Plane"), [""])
sketch16.MapMode = "FlatFace"
add_polygon(sketch16, [(-5.3, 67.6), (-5.3, 65.6), (1.5, 65.6), (1.5, 67.6)])
add_polygon(sketch16, [(-32.1, 65.6), (-25.3, 65.6), (-25.3, 67.6), (-32.1, 67.6)])
sketch16.addConstraint(Sketcher.Constraint("Vertical", 0))
sketch16.addConstraint(Sketcher.Constraint("Horizontal", 1))
sketch16.addConstraint(Sketcher.Constraint("Vertical", 2))
sketch16.addConstraint(Sketcher.Constraint("Horizontal", 3))
sketch16.addConstraint(Sketcher.Constraint("Horizontal", 4))
sketch16.addConstraint(Sketcher.Constraint("Vertical", 5))
sketch16.addConstraint(Sketcher.Constraint("Horizontal", 6))
sketch16.addConstraint(Sketcher.Constraint("Vertical", 7))
sketch16.addConstraint(Sketcher.Constraint("Horizontal", 1, 2, 4, 2))
sketch16.addConstraint(Sketcher.Constraint("Horizontal", 3, 2, 5, 2))
sketch16.addConstraint(Sketcher.Constraint("Equal", 3, 4))
sketch16.addConstraint(Sketcher.Constraint("DistanceY", 0, 2, 0, 1, Q("2 mm")))
sketch16.addConstraint(Sketcher.Constraint("DistanceX", 1, 1, 1, 2, Q("6.8 mm")))
sketch16.addConstraint(Sketcher.Constraint("DistanceX", 4, 2, 0, 2, Q("20 mm")))
sketch16.addConstraint(Sketcher.Constraint("DistanceX", 0, 2, -1, 1, Q("5.3 mm")))
sketch16.addConstraint(Sketcher.Constraint("DistanceY", -1, 1, 0, 2, Q("65.6 mm")))
pad11 = body.newObject("PartDesign::Pad", "Pad010")
pad11.Profile = sketch16
pad11.Length = 19
pad11.Reversed = True

sketch17 = body.newObject("Sketcher::SketchObject", "Sketch016")
sketch17.AttachmentSupport = (doc.getObject("XZ_Plane"), [""])
sketch17.MapMode = "FlatFace"
add_polygon(sketch17, [(-7.3, 69.1), (-7.3, 102.6), (-8.8, 102.6), (-8.8, 69.1)])
add_polygon(sketch17, [(-21.8, 102.6), (-23.3, 102.6), (-23.3, 69.1), (-21.8, 69.1)])
sketch17.addConstraint(Sketcher.Constraint("Vertical", 0))
sketch17.addConstraint(Sketcher.Constraint("Horizontal", 1))
sketch17.addConstraint(Sketcher.Constraint("Vertical", 2))
sketch17.addConstraint(Sketcher.Constraint("Horizontal", 3))
sketch17.addConstraint(Sketcher.Constraint("Horizontal", 4))
sketch17.addConstraint(Sketcher.Constraint("Vertical", 5))
sketch17.addConstraint(Sketcher.Constraint("Horizontal", 6))
sketch17.addConstraint(Sketcher.Constraint("Vertical", 7))
sketch17.addConstraint(Sketcher.Constraint("Horizontal", 1, 2, 4, 2))
sketch17.addConstraint(Sketcher.Constraint("Horizontal", 3, 2, 5, 2))
sketch17.addConstraint(Sketcher.Constraint("Equal", 3, 4))
sketch17.addConstraint(Sketcher.Constraint("DistanceX", 1, 2, 1, 1, Q("1.5 mm")))
sketch17.addConstraint(Sketcher.Constraint("DistanceY", 0, 1, 0, 2, Q("33.5 mm")))
sketch17.addConstraint(Sketcher.Constraint("DistanceX", 4, 2, 0, 2, Q("16 mm")))
sketch17.addConstraint(Sketcher.Constraint("DistanceX", 0, 2, -1, 1, Q("7.3 mm")))
sketch17.addConstraint(Sketcher.Constraint("DistanceY", -1, 1, 0, 2, Q("102.6 mm")))
pad12 = body.newObject("PartDesign::Pad", "Pad011")
pad12.Profile = sketch17
pad12.Length = 24
pad12.Reversed = True

sketch18 = body.newObject("Sketcher::SketchObject", "Sketch017")
sketch18.AttachmentSupport = (doc.getObject("XZ_Plane"), [""])
sketch18.MapMode = "FlatFace"
add_polygon(sketch18, [(-21.8, 69.1), (-26.8, 69.1), (-26.8, 67.6), (-21.8, 67.6)])
add_polygon(sketch18, [(-8.8, 69.1), (-8.8, 67.6), (-3.8, 67.6), (-3.8, 69.1)])
sketch18.addConstraint(Sketcher.Constraint("Horizontal", 0))
sketch18.addConstraint(Sketcher.Constraint("Vertical", 1))
sketch18.addConstraint(Sketcher.Constraint("Horizontal", 2))
sketch18.addConstraint(Sketcher.Constraint("Vertical", 3))
sketch18.addConstraint(Sketcher.Constraint("Vertical", 4))
sketch18.addConstraint(Sketcher.Constraint("Horizontal", 5))
sketch18.addConstraint(Sketcher.Constraint("Vertical", 6))
sketch18.addConstraint(Sketcher.Constraint("Horizontal", 7))
sketch18.addConstraint(Sketcher.Constraint("Horizontal", 2, 2, 4, 2))
sketch18.addConstraint(Sketcher.Constraint("Horizontal", 3, 2, 6, 2))
sketch18.addConstraint(Sketcher.Constraint("Equal", 2, 5))
sketch18.addConstraint(Sketcher.Constraint("DistanceY", 1, 2, 1, 1, Q("1.5 mm")))
sketch18.addConstraint(Sketcher.Constraint("DistanceX", 0, 2, 0, 1, Q("5 mm")))
sketch18.addConstraint(Sketcher.Constraint("DistanceX", 2, 2, 4, 2, Q("13 mm")))
sketch18.addConstraint(Sketcher.Constraint("DistanceX", 0, 2, -1, 1, Q("26.8 mm")))
sketch18.addConstraint(Sketcher.Constraint("DistanceY", -1, 1, 0, 2, Q("69.1 mm")))
pad13 = body.newObject("PartDesign::Pad", "Pad012")
pad13.Profile = sketch18
pad13.Length = 19
pad13.Reversed = True

sketch19 = body.newObject("Sketcher::SketchObject", "Sketch018")
sketch19.AttachmentSupport = (doc.getObject("XZ_Plane"), [""])
sketch19.MapMode = "FlatFace"
sketch19.AttachmentOffset = App.Placement(Vector(0, 0, -19), App.Rotation())
add_polygon(sketch19, [(-5.3, 67.6), (-5.3, 65.6), (0, 65.6), (0, 0), (-30.6, 0), (-30.6, 65.6), (-25.3, 65.6), (-25.3, 67.6)])
add_polygon(sketch19, [(-23.8, 64.1), (-29.1, 64.1), (-29.1, 1.5), (-1.5, 1.5), (-1.5, 64.1), (-6.8, 64.1), (-6.8, 66.1), (-23.8, 66.1)])
sketch19.addConstraint(Sketcher.Constraint("Vertical", 0))
sketch19.addConstraint(Sketcher.Constraint("Horizontal", 1))
sketch19.addConstraint(Sketcher.Constraint("Vertical", 2))
sketch19.addConstraint(Sketcher.Constraint("Horizontal", 3))
sketch19.addConstraint(Sketcher.Constraint("Vertical", 4))
sketch19.addConstraint(Sketcher.Constraint("Horizontal", 5))
sketch19.addConstraint(Sketcher.Constraint("Vertical", 6))
sketch19.addConstraint(Sketcher.Constraint("Horizontal", 7))
sketch19.addConstraint(Sketcher.Constraint("Horizontal", 8))
sketch19.addConstraint(Sketcher.Constraint("Vertical", 9))
sketch19.addConstraint(Sketcher.Constraint("Horizontal", 10))
sketch19.addConstraint(Sketcher.Constraint("Vertical", 11))
sketch19.addConstraint(Sketcher.Constraint("Horizontal", 12))
sketch19.addConstraint(Sketcher.Constraint("Vertical", 13))
sketch19.addConstraint(Sketcher.Constraint("Horizontal", 14))
sketch19.addConstraint(Sketcher.Constraint("Vertical", 15))
sketch19.addConstraint(Sketcher.Constraint("Coincident", 2, 2, -1, 1))
sketch19.addConstraint(Sketcher.Constraint("Horizontal", 1, 2, 4, 2))
sketch19.addConstraint(Sketcher.Constraint("Horizontal", 8, 2, 11, 2))
sketch19.addConstraint(Sketcher.Constraint("Equal", 1, 5))
sketch19.addConstraint(Sketcher.Constraint("Equal", 5, 8))
sketch19.addConstraint(Sketcher.Constraint("Equal", 8, 12))
sketch19.addConstraint(Sketcher.Constraint("Equal", 6, 13))
sketch19.addConstraint(Sketcher.Constraint("DistanceY", -1, 1, 9, 2, Q("1.5 mm")))
sketch19.addConstraint(Sketcher.Constraint("DistanceX", 10, 2, -1, 1, Q("1.5 mm")))
sketch19.addConstraint(Sketcher.Constraint("DistanceX", 4, 2, 8, 2, Q("1.5 mm")))
sketch19.addConstraint(Sketcher.Constraint("DistanceY", 8, 2, 4, 2, Q("1.5 mm")))
sketch19.addConstraint(Sketcher.Constraint("DistanceX", 7, 1, 7, 2, Q("20 mm")))
sketch19.addConstraint(Sketcher.Constraint("DistanceY", 0, 2, 0, 1, Q("2 mm")))
sketch19.addConstraint(Sketcher.Constraint("DistanceX", 1, 1, 1, 2, Q("5.3 mm")))
sketch19.addConstraint(Sketcher.Constraint("DistanceY", 2, 2, 2, 1, Q("65.6 mm")))
pad14 = body.newObject("PartDesign::Pad", "Pad013")
pad14.Profile = sketch19
pad14.Length = 2

sketch20 = body.newObject("Sketcher::SketchObject", "Sketch019")
sketch20.AttachmentSupport = (doc.getObject("XZ_Plane"), [""])
sketch20.MapMode = "FlatFace"
sketch20.AttachmentOffset = App.Placement(Vector(0, 0, -19), App.Rotation())
add_polygon(sketch20, [(-3.8, 67.6), (1.5, 67.6), (1.5, -1.5), (-32.1, -1.5), (-32.1, 67.6), (-26.8, 67.6), (-26.8, 69.1), (-3.8, 69.1)])
sketch20.addConstraint(Sketcher.Constraint("Horizontal", 0))
sketch20.addConstraint(Sketcher.Constraint("Vertical", 1))
sketch20.addConstraint(Sketcher.Constraint("Horizontal", 2))
sketch20.addConstraint(Sketcher.Constraint("Vertical", 3))
sketch20.addConstraint(Sketcher.Constraint("Horizontal", 4))
sketch20.addConstraint(Sketcher.Constraint("Vertical", 5))
sketch20.addConstraint(Sketcher.Constraint("Horizontal", 6))
sketch20.addConstraint(Sketcher.Constraint("Vertical", 7))
sketch20.addConstraint(Sketcher.Constraint("Horizontal", 0, 2, 3, 2))
sketch20.addConstraint(Sketcher.Constraint("Equal", 0, 4))
sketch20.addConstraint(Sketcher.Constraint("DistanceX", 6, 1, 6, 2, Q("23 mm")))
sketch20.addConstraint(Sketcher.Constraint("DistanceX", 0, 1, 0, 2, Q("5.3 mm")))
sketch20.addConstraint(Sketcher.Constraint("DistanceY", 1, 2, 1, 1, Q("69.1 mm")))
sketch20.addConstraint(Sketcher.Constraint("DistanceY", 5, 1, 5, 2, Q("1.5 mm")))
sketch20.addConstraint(Sketcher.Constraint("DistanceX", -1, 1, 0, 2, Q("1.5 mm")))
sketch20.addConstraint(Sketcher.Constraint("DistanceY", -1, 1, 0, 2, Q("67.6 mm")))
pad15 = body.newObject("PartDesign::Pad", "Pad014")
pad15.Profile = sketch20
pad15.Length = 1.5
pad15.Reversed = True

sketch21 = body.newObject("Sketcher::SketchObject", "Sketch020")
sketch21.AttachmentSupport = (doc.getObject("XZ_Plane"), [""])
sketch21.MapMode = "FlatFace"
sketch21.AttachmentOffset = App.Placement(Vector(0, 0, -24), App.Rotation())
add_polygon(sketch21, [(-21.8, 69.1), (-21.8, 101.1), (-8.8, 101.1), (-8.8, 69.1), (-10.3, 69.1), (-10.3, 99.6), (-20.3, 99.6), (-20.3, 69.1)])
sketch21.addConstraint(Sketcher.Constraint("Vertical", 0))
sketch21.addConstraint(Sketcher.Constraint("Horizontal", 1))
sketch21.addConstraint(Sketcher.Constraint("Vertical", 2))
sketch21.addConstraint(Sketcher.Constraint("Horizontal", 3))
sketch21.addConstraint(Sketcher.Constraint("Vertical", 4))
sketch21.addConstraint(Sketcher.Constraint("Horizontal", 5))
sketch21.addConstraint(Sketcher.Constraint("Vertical", 6))
sketch21.addConstraint(Sketcher.Constraint("Horizontal", 7))
sketch21.addConstraint(Sketcher.Constraint("Horizontal", 3, 2, 6, 2))
sketch21.addConstraint(Sketcher.Constraint("Equal", 3, 7))
sketch21.addConstraint(Sketcher.Constraint("DistanceX", 3, 2, 3, 1, Q("1.5 mm")))
sketch21.addConstraint(Sketcher.Constraint("DistanceY", 4, 2, 1, 2, Q("1.5 mm")))
sketch21.addConstraint(Sketcher.Constraint("DistanceX", 1, 1, 1, 2, Q("13 mm")))
sketch21.addConstraint(Sketcher.Constraint("DistanceY", 0, 1, 0, 2, Q("32 mm")))
sketch21.addConstraint(Sketcher.Constraint("DistanceX", 0, 2, -1, 1, Q("21.8 mm")))
sketch21.addConstraint(Sketcher.Constraint("DistanceY", -1, 1, 0, 2, Q("101.1 mm")))
pad16 = body.newObject("PartDesign::Pad", "Pad015")
pad16.Profile = sketch21
pad16.Length = 1.5

sketch22 = body.newObject("Sketcher::SketchObject", "Sketch021")
sketch22.AttachmentSupport = (doc.getObject("XZ_Plane"), [""])
sketch22.MapMode = "FlatFace"
sketch22.AttachmentOffset = App.Placement(Vector(0, 0, -24), App.Rotation())
add_polygon(sketch22, [(-23.3, 67.6), (-23.3, 69.1), (-7.3, 69.1), (-7.3, 67.6)])
sketch22.addConstraint(Sketcher.Constraint("Vertical", 0))
sketch22.addConstraint(Sketcher.Constraint("Horizontal", 1))
sketch22.addConstraint(Sketcher.Constraint("Vertical", 2))
sketch22.addConstraint(Sketcher.Constraint("Horizontal", 3))
sketch22.addConstraint(Sketcher.Constraint("DistanceX", 1, 1, 1, 2, Q("16 mm")))
sketch22.addConstraint(Sketcher.Constraint("DistanceY", 0, 1, 0, 2, Q("1.5 mm")))
sketch22.addConstraint(Sketcher.Constraint("DistanceX", 0, 2, -1, 1, Q("23.3 mm")))
sketch22.addConstraint(Sketcher.Constraint("DistanceY", -1, 1, 0, 2, Q("69.1 mm")))
pad17 = body.newObject("PartDesign::Pad", "Pad016")
pad17.Profile = sketch22
pad17.Length = 3.5

sketch23 = body.newObject("Sketcher::SketchObject", "Sketch022")
sketch23.AttachmentSupport = (doc.getObject("XZ_Plane"), [""])
sketch23.MapMode = "FlatFace"
sketch23.AttachmentOffset = App.Placement(Vector(0, 0, -24), App.Rotation())
add_polygon(sketch23, [(-23, 103), (-7, 103), (-7, 68), (-23, 68)])
sketch23.addConstraint(Sketcher.Constraint("Horizontal", 0))
sketch23.addConstraint(Sketcher.Constraint("Vertical", 1))
sketch23.addConstraint(Sketcher.Constraint("Horizontal", 2))
sketch23.addConstraint(Sketcher.Constraint("Vertical", 3))
sketch23.addConstraint(Sketcher.Constraint("DistanceX", 0, 1, 0, 2, Q("16 mm")))
sketch23.addConstraint(Sketcher.Constraint("DistanceY", 1, 2, 1, 1, Q("35 mm")))
sketch23.addConstraint(Sketcher.Constraint("DistanceX", 0, 2, -1, 1, Q("7.3 mm")))
sketch23.addConstraint(Sketcher.Constraint("DistanceY", -1, 1, 0, 2, Q("102.6 mm")))
pad18 = body.newObject("PartDesign::Pad", "Pad017")
pad18.Profile = sketch23
pad18.Length = 1.5
pad18.Reversed = True

sketch24 = body.newObject("Sketcher::SketchObject", "Sketch023")
sketch24.AttachmentSupport = (doc.getObject("XZ_Plane"), [""])
sketch24.MapMode = "FlatFace"
sketch24.AttachmentOffset = App.Placement(Vector(0, 0, -20.5), App.Rotation())
add_polygon(sketch24, [(-7, 48), (0, 48), (0, 25), (-7, 25)])
sketch24.addConstraint(Sketcher.Constraint("Horizontal", 0))
sketch24.addConstraint(Sketcher.Constraint("Vertical", 1))
sketch24.addConstraint(Sketcher.Constraint("Horizontal", 2))
sketch24.addConstraint(Sketcher.Constraint("Vertical", 3))
sketch24.addConstraint(Sketcher.Constraint("PointOnObject", 0, 2, -2))
sketch24.addConstraint(Sketcher.Constraint("DistanceX", 0, 1, 0, 2, Q("7 mm")))
sketch24.addConstraint(Sketcher.Constraint("DistanceY", 1, 2, 1, 1, Q("23 mm")))
sketch24.addConstraint(Sketcher.Constraint("DistanceY", -1, 1, 0, 2, Q("48.3 mm")))
pocket6 = body.newObject("PartDesign::Pocket", "Pocket005")
pocket6.Profile = sketch24
pocket6.Length = 5
pocket6.Reversed = True

doc.recompute()
